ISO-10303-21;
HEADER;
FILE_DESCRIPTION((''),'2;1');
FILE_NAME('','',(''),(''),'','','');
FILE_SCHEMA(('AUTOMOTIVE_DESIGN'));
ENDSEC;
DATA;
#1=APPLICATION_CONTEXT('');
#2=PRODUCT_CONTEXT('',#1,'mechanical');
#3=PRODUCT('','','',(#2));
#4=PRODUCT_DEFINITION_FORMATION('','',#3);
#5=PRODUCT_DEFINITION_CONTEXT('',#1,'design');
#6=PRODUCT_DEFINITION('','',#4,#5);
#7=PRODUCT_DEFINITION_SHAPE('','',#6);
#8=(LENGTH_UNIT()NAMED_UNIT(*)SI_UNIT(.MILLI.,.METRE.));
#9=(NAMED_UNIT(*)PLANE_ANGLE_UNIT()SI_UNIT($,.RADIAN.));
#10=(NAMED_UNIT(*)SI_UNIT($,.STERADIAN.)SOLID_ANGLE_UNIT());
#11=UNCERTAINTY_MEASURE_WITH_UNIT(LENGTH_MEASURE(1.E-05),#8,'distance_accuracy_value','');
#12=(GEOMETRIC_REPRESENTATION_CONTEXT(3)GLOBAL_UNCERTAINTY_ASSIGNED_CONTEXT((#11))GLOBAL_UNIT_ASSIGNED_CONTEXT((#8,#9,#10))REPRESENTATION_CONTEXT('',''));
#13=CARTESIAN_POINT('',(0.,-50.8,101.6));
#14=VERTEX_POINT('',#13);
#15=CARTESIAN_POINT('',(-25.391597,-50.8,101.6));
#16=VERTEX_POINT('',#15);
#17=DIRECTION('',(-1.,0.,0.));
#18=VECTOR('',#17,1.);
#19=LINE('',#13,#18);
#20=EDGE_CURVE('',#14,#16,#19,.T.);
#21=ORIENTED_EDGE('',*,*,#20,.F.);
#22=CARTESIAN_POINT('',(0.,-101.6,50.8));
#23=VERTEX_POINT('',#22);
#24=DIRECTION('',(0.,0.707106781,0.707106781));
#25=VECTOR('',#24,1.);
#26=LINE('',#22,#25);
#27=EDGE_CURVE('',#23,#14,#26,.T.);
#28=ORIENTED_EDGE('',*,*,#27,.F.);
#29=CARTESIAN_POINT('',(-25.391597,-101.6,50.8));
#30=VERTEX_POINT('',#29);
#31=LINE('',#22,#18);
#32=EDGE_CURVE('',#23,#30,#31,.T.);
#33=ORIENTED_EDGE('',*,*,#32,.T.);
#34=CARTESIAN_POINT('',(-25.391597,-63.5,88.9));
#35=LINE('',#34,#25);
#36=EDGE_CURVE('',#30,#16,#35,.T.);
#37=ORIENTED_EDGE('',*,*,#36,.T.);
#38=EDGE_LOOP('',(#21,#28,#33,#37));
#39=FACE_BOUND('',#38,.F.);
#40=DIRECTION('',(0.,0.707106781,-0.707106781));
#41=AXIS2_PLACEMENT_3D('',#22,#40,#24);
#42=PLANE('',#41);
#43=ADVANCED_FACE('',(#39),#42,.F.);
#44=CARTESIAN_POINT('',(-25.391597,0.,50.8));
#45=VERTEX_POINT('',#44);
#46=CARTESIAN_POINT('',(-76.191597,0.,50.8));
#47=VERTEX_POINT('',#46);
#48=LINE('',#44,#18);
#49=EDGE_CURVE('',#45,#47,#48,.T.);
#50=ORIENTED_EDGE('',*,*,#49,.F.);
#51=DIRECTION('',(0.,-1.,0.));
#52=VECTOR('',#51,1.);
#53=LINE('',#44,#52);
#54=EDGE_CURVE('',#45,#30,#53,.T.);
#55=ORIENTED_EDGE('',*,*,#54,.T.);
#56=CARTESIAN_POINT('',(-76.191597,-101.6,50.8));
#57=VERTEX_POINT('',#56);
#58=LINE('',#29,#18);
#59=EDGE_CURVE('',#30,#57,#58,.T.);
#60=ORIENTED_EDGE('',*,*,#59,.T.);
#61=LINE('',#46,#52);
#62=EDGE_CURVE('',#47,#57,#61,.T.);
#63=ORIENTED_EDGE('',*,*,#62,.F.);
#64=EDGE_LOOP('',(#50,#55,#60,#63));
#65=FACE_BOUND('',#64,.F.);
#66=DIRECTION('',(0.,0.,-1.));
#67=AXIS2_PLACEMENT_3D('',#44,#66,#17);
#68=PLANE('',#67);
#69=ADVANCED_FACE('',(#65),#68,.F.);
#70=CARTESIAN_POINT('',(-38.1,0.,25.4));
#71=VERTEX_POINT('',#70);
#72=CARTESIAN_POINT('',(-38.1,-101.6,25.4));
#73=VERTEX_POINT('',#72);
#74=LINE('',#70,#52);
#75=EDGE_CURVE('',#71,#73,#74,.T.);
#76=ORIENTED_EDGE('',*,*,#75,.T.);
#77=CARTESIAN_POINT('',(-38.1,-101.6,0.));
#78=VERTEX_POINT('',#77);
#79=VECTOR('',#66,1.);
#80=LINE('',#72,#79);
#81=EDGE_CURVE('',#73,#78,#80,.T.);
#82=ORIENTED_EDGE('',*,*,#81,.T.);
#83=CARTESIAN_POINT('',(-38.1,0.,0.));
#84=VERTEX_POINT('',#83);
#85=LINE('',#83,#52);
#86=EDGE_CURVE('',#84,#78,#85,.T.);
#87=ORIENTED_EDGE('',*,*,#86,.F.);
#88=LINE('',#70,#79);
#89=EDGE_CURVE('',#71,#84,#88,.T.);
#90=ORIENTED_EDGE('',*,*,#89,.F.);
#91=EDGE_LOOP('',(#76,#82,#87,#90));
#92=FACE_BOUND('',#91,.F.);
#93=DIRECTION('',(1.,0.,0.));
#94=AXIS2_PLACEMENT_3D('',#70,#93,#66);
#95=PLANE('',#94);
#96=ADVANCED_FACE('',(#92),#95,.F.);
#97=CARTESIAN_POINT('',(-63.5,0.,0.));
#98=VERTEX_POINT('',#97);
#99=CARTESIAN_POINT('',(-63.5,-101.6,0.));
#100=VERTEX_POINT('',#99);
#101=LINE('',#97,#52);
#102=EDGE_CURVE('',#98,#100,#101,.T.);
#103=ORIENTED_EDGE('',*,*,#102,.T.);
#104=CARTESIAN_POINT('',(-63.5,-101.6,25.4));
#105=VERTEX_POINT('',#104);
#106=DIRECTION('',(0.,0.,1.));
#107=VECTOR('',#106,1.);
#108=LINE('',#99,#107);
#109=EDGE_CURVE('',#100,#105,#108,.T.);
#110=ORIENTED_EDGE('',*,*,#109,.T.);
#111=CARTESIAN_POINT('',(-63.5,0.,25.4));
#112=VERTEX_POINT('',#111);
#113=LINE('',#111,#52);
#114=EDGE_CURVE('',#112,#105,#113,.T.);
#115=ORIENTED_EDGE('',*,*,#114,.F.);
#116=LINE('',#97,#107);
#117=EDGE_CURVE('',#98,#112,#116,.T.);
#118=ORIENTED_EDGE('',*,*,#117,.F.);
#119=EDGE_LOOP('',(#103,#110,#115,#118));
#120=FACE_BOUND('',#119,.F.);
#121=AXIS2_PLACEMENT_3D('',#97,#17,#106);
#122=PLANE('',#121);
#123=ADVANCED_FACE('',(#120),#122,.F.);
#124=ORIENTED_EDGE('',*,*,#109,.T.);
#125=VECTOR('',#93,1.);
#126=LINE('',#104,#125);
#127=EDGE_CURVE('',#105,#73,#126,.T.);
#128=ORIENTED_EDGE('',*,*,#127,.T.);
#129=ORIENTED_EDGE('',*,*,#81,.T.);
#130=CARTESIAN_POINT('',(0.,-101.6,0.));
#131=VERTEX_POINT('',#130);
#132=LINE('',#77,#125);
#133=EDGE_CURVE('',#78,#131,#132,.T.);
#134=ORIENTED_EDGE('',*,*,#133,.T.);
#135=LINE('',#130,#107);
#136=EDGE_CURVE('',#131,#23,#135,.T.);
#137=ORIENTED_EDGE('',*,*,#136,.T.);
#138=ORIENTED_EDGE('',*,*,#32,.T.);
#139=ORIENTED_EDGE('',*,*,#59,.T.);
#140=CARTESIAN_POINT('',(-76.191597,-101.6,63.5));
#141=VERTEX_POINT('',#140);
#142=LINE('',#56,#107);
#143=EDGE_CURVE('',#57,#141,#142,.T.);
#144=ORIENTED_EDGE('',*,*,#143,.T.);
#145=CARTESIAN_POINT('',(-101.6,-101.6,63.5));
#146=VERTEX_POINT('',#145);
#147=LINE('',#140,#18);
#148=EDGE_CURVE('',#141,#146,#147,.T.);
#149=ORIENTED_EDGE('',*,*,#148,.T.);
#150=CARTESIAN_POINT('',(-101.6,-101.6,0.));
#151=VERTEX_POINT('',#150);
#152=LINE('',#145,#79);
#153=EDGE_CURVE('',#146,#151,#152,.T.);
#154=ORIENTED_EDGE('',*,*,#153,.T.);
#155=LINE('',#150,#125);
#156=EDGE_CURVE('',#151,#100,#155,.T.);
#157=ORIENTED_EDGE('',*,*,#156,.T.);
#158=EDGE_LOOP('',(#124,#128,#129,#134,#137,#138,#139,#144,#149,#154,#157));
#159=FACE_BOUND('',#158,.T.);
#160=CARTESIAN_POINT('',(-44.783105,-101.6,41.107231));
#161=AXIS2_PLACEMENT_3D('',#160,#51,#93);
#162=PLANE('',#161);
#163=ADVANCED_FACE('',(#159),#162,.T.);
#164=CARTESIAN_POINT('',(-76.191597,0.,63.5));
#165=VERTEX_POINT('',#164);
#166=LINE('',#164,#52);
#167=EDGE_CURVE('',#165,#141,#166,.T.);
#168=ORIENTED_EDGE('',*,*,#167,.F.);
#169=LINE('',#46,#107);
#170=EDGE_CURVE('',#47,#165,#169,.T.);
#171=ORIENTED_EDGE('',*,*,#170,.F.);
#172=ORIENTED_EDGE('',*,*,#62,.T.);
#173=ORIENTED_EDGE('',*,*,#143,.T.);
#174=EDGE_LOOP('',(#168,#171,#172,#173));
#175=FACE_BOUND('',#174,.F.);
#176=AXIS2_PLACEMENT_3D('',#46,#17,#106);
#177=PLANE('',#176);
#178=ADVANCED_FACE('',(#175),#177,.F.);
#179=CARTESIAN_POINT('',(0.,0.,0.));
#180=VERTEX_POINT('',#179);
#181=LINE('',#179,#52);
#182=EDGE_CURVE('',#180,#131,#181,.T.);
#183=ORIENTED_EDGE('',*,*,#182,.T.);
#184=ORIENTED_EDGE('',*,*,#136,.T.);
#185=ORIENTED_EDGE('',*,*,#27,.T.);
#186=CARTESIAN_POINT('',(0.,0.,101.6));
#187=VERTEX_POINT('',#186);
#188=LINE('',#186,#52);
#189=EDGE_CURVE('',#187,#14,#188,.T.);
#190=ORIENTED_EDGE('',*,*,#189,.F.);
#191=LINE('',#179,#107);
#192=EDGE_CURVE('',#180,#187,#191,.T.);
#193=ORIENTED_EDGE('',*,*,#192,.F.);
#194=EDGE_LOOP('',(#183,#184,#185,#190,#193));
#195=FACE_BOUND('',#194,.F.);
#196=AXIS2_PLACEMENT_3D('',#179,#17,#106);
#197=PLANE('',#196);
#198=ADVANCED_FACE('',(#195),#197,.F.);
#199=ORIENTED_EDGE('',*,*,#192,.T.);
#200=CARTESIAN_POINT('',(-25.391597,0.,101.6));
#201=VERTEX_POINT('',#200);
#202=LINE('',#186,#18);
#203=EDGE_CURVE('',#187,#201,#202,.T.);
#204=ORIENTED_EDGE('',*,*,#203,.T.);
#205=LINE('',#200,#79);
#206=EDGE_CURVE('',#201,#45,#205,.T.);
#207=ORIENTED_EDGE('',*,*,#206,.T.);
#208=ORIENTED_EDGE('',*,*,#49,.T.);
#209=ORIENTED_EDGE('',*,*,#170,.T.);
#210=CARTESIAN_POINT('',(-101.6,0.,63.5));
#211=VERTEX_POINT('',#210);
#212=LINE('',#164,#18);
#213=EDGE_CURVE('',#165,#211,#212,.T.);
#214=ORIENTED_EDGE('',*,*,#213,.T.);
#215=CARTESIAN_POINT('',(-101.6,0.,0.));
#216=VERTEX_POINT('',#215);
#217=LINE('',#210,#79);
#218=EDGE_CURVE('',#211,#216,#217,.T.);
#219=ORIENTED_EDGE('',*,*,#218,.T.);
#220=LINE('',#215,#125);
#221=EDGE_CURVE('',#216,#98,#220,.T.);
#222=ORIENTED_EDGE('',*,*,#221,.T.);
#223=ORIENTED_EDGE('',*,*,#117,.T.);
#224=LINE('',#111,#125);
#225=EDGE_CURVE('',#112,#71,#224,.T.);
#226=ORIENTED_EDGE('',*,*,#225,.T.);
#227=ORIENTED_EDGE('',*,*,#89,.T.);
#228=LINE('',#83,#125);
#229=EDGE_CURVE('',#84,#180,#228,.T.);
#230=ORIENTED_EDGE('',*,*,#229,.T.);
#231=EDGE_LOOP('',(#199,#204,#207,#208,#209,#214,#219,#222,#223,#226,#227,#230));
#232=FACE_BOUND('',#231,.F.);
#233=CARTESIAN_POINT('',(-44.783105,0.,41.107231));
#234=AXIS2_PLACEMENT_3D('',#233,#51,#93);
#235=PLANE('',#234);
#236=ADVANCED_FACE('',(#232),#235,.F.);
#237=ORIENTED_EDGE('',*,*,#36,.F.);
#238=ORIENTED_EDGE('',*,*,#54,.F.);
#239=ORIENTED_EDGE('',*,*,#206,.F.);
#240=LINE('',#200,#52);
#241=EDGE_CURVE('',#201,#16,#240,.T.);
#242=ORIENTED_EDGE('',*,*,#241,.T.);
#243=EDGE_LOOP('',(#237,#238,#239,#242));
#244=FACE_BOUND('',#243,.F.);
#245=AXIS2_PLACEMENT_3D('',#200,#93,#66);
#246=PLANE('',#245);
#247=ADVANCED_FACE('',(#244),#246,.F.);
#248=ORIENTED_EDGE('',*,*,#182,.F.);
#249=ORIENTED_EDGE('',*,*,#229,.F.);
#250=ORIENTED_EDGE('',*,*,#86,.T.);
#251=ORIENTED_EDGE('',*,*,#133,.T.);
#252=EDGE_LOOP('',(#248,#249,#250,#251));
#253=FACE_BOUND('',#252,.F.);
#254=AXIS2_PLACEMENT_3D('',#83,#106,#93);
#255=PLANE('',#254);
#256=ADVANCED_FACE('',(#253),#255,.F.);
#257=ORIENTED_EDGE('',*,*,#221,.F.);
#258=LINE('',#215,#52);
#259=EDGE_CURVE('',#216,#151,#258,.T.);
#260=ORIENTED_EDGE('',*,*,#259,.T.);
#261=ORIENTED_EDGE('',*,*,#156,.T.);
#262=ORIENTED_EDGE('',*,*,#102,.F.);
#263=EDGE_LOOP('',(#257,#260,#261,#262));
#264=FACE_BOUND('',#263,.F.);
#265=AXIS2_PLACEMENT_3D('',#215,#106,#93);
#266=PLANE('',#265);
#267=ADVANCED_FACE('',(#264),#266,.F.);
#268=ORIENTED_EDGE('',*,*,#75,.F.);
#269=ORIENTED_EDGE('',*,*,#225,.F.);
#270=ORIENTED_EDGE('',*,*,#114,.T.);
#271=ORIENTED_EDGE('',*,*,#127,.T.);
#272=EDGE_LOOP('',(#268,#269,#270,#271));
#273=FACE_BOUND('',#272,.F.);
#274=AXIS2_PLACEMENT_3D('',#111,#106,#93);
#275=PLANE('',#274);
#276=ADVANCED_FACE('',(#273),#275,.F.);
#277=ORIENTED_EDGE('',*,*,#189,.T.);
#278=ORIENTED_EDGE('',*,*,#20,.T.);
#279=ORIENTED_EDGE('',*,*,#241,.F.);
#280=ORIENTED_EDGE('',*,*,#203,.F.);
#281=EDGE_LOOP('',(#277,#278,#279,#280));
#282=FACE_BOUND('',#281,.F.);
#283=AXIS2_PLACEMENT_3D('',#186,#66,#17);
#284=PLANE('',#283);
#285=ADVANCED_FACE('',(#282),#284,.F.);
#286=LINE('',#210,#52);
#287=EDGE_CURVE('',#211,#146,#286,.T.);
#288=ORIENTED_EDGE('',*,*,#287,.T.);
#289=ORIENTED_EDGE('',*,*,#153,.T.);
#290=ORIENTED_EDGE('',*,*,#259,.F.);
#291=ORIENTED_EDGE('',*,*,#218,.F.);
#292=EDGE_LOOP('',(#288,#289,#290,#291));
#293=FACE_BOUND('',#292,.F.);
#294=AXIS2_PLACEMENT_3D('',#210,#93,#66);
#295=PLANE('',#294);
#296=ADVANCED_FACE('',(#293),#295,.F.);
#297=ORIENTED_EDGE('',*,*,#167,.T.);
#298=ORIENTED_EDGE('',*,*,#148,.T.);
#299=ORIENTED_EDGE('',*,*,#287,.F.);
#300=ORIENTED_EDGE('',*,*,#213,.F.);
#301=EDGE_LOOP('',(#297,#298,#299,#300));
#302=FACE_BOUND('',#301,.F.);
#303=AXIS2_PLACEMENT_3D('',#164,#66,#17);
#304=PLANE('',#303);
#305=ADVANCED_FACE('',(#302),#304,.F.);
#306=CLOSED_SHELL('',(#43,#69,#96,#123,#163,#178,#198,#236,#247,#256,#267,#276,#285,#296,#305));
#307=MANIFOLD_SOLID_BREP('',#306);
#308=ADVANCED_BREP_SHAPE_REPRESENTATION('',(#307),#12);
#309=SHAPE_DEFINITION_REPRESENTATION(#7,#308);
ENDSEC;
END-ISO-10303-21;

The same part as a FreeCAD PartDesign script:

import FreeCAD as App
import Part
import Sketcher
Q = App.Units.Quantity

doc = App.newDocument("Part")
body = doc.addObject("PartDesign::Body", "Body")

# Sketch on XZ plane
sketch1 = doc.addObject("Sketcher::SketchObject", "Sketch")
body.addObject(sketch1)
sketch1.AttachmentSupport = (doc.XZ_Plane, [""])
sketch1.MapMode = "FlatFace"
sketch1.addGeometry(Part.LineSegment(App.Vector(-38.1, 0, 0), App.Vector(0, 0, 0)), False)
sketch1.addGeometry(Part.LineSegment(App.Vector(0, 0, 0), App.Vector(0, 101.6, 0)), False)
sketch1.addGeometry(Part.LineSegment(App.Vector(0, 101.6, 0), App.Vector(-25.391597, 101.6, 0)), False)
sketch1.addGeometry(Part.LineSegment(App.Vector(-25.391597, 101.6, 0), App.Vector(-25.391597, 50.8, 0)), False)
sketch1.addGeometry(Part.LineSegment(App.Vector(-25.391597, 50.8, 0), App.Vector(-76.191597, 50.8, 0)), False)
sketch1.addGeometry(Part.LineSegment(App.Vector(-76.191597, 50.8, 0), App.Vector(-76.191597, 63.5, 0)), False)
sketch1.addGeometry(Part.LineSegment(App.Vector(-76.191597, 63.5, 0), App.Vector(-101.6, 63.5, 0)), False)
sketch1.addGeometry(Part.LineSegment(App.Vector(-101.6, 63.5, 0), App.Vector(-101.6, 0, 0)), False)
sketch1.addGeometry(Part.LineSegment(App.Vector(-101.6, 0, 0), App.Vector(-63.5, 0, 0)), False)
sketch1.addGeometry(Part.LineSegment(App.Vector(-63.5, 0, 0), App.Vector(-63.5, 25.4, 0)), False)
sketch1.addGeometry(Part.LineSegment(App.Vector(-63.5, 25.4, 0), App.Vector(-38.1, 25.4, 0)), False)
sketch1.addGeometry(Part.LineSegment(App.Vector(-38.1, 25.4, 0), App.Vector(-38.1, 0, 0)), False)
sketch1.addConstraint(Sketcher.Constraint("Coincident", 0, 2, 1, 1))
sketch1.addConstraint(Sketcher.Constraint("Coincident", 1, 2, 2, 1))
sketch1.addConstraint(Sketcher.Constraint("Coincident", 2, 2, 3, 1))
sketch1.addConstraint(Sketcher.Constraint("Coincident", 3, 2, 4, 1))
sketch1.addConstraint(Sketcher.Constraint("Coincident", 4, 2, 5, 1))
sketch1.addConstraint(Sketcher.Constraint("Coincident", 5, 2, 6, 1))
sketch1.addConstraint(Sketcher.Constraint("Coincident", 6, 2, 7, 1))
sketch1.addConstraint(Sketcher.Constraint("Coincident", 7, 2, 8, 1))
sketch1.addConstraint(Sketcher.Constraint("Coincident", 8, 2, 9, 1))
sketch1.addConstraint(Sketcher.Constraint("Coincident", 9, 2, 10, 1))
sketch1.addConstraint(Sketcher.Constraint("Coincident", 10, 2, 11, 1))
sketch1.addConstraint(Sketcher.Constraint("Coincident", 11, 2, 0, 1))
sketch1.addConstraint(Sketcher.Constraint("Horizontal", 0))
sketch1.addConstraint(Sketcher.Constraint("Vertical", 1))
sketch1.addConstraint(Sketcher.Constraint("Horizontal", 2))
sketch1.addConstraint(Sketcher.Constraint("Vertical", 3))
sketch1.addConstraint(Sketcher.Constraint("Horizontal", 4))
sketch1.addConstraint(Sketcher.Constraint("Vertical", 5))
sketch1.addConstraint(Sketcher.Constraint("Horizontal", 6))
sketch1.addConstraint(Sketcher.Constraint("Vertical", 7))
sketch1.addConstraint(Sketcher.Constraint("Horizontal", 8))
sketch1.addConstraint(Sketcher.Constraint("Vertical", 9))
sketch1.addConstraint(Sketcher.Constraint("Horizontal", 10))
sketch1.addConstraint(Sketcher.Constraint("Vertical", 11))
sketch1.addConstraint(Sketcher.Constraint("Coincident", 0, 2, -1, 1))
sketch1.addConstraint(Sketcher.Constraint("PointOnObject", 7, 2, -1))
sketch1.addConstraint(Sketcher.Constraint("Equal", 0, 8))
sketch1.addConstraint(Sketcher.Constraint("Equal", 4, 3))
sketch1.addConstraint(Sketcher.Constraint("Equal", 10, 9))
sketch1.addConstraint(Sketcher.Constraint("DistanceX", 4, 2, 4, 1, Q("2 in")))
sketch1.addConstraint(Sketcher.Constraint("DistanceX", 10, 1, 10, 2, Q("1 in")))
sketch1.addConstraint(Sketcher.Constraint("DistanceY", 1, 1, 1, 2, Q("4 in")))
sketch1.addConstraint(Sketcher.Constraint("DistanceX", 0, 1, 0, 2, Q("1.5 in")))
sketch1.addConstraint(Sketcher.Constraint("DistanceY", 5, 1, 5, 2, Q("0.5 in")))
sketch1.addConstraint(Sketcher.Constraint("DistanceX", 2, 2, 2, 1, 25.391597))
pad1 = doc.addObject("PartDesign::Pad", "Pad")
body.addObject(pad1)
pad1.Profile = sketch1
pad1.Length = Q("4 in")

# Sketch on YZ plane
sketch2 = doc.addObject("Sketcher::SketchObject", "Sketch001")
body.addObject(sketch2)
sketch2.AttachmentSupport = (doc.YZ_Plane, [""])
sketch2.MapMode = "FlatFace"
sketch2.addGeometry(Part.LineSegment(App.Vector(-101.6, 101.6, 0), App.Vector(-101.6, 50.8, 0)), False)
sketch2.addGeometry(Part.LineSegment(App.Vector(-101.6, 50.8, 0), App.Vector(-50.8, 101.6, 0)), False)
sketch2.addGeometry(Part.LineSegment(App.Vector(-50.8, 101.6, 0), App.Vector(-101.6, 101.6, 0)), False)
sketch2.addConstraint(Sketcher.Constraint("Coincident", 0, 2, 1, 1))
sketch2.addConstraint(Sketcher.Constraint("Coincident", 1, 2, 2, 1))
sketch2.addConstraint(Sketcher.Constraint("Coincident", 2, 2, 0, 1))
sketch2.addConstraint(Sketcher.Constraint("Vertical", 0))
sketch2.addConstraint(Sketcher.Constraint("Horizontal", 2))
sketch2.addConstraint(Sketcher.Constraint("Equal", 2, 0))
sketch2.addConstraint(Sketcher.Constraint("DistanceX", 2, 2, 2, 1, Q("2 in")))
sketch2.addConstraint(Sketcher.Constraint("DistanceX", 0, 2, -1, 1, Q("4 in")))
sketch2.addConstraint(Sketcher.Constraint("DistanceY", -1, 1, 0, 2, Q("2 in")))
pocket1 = doc.addObject("PartDesign::Pocket", "Pocket")
body.addObject(pocket1)
pocket1.Profile = sketch2
pocket1.Length = Q("1 in")

doc.recompute()
